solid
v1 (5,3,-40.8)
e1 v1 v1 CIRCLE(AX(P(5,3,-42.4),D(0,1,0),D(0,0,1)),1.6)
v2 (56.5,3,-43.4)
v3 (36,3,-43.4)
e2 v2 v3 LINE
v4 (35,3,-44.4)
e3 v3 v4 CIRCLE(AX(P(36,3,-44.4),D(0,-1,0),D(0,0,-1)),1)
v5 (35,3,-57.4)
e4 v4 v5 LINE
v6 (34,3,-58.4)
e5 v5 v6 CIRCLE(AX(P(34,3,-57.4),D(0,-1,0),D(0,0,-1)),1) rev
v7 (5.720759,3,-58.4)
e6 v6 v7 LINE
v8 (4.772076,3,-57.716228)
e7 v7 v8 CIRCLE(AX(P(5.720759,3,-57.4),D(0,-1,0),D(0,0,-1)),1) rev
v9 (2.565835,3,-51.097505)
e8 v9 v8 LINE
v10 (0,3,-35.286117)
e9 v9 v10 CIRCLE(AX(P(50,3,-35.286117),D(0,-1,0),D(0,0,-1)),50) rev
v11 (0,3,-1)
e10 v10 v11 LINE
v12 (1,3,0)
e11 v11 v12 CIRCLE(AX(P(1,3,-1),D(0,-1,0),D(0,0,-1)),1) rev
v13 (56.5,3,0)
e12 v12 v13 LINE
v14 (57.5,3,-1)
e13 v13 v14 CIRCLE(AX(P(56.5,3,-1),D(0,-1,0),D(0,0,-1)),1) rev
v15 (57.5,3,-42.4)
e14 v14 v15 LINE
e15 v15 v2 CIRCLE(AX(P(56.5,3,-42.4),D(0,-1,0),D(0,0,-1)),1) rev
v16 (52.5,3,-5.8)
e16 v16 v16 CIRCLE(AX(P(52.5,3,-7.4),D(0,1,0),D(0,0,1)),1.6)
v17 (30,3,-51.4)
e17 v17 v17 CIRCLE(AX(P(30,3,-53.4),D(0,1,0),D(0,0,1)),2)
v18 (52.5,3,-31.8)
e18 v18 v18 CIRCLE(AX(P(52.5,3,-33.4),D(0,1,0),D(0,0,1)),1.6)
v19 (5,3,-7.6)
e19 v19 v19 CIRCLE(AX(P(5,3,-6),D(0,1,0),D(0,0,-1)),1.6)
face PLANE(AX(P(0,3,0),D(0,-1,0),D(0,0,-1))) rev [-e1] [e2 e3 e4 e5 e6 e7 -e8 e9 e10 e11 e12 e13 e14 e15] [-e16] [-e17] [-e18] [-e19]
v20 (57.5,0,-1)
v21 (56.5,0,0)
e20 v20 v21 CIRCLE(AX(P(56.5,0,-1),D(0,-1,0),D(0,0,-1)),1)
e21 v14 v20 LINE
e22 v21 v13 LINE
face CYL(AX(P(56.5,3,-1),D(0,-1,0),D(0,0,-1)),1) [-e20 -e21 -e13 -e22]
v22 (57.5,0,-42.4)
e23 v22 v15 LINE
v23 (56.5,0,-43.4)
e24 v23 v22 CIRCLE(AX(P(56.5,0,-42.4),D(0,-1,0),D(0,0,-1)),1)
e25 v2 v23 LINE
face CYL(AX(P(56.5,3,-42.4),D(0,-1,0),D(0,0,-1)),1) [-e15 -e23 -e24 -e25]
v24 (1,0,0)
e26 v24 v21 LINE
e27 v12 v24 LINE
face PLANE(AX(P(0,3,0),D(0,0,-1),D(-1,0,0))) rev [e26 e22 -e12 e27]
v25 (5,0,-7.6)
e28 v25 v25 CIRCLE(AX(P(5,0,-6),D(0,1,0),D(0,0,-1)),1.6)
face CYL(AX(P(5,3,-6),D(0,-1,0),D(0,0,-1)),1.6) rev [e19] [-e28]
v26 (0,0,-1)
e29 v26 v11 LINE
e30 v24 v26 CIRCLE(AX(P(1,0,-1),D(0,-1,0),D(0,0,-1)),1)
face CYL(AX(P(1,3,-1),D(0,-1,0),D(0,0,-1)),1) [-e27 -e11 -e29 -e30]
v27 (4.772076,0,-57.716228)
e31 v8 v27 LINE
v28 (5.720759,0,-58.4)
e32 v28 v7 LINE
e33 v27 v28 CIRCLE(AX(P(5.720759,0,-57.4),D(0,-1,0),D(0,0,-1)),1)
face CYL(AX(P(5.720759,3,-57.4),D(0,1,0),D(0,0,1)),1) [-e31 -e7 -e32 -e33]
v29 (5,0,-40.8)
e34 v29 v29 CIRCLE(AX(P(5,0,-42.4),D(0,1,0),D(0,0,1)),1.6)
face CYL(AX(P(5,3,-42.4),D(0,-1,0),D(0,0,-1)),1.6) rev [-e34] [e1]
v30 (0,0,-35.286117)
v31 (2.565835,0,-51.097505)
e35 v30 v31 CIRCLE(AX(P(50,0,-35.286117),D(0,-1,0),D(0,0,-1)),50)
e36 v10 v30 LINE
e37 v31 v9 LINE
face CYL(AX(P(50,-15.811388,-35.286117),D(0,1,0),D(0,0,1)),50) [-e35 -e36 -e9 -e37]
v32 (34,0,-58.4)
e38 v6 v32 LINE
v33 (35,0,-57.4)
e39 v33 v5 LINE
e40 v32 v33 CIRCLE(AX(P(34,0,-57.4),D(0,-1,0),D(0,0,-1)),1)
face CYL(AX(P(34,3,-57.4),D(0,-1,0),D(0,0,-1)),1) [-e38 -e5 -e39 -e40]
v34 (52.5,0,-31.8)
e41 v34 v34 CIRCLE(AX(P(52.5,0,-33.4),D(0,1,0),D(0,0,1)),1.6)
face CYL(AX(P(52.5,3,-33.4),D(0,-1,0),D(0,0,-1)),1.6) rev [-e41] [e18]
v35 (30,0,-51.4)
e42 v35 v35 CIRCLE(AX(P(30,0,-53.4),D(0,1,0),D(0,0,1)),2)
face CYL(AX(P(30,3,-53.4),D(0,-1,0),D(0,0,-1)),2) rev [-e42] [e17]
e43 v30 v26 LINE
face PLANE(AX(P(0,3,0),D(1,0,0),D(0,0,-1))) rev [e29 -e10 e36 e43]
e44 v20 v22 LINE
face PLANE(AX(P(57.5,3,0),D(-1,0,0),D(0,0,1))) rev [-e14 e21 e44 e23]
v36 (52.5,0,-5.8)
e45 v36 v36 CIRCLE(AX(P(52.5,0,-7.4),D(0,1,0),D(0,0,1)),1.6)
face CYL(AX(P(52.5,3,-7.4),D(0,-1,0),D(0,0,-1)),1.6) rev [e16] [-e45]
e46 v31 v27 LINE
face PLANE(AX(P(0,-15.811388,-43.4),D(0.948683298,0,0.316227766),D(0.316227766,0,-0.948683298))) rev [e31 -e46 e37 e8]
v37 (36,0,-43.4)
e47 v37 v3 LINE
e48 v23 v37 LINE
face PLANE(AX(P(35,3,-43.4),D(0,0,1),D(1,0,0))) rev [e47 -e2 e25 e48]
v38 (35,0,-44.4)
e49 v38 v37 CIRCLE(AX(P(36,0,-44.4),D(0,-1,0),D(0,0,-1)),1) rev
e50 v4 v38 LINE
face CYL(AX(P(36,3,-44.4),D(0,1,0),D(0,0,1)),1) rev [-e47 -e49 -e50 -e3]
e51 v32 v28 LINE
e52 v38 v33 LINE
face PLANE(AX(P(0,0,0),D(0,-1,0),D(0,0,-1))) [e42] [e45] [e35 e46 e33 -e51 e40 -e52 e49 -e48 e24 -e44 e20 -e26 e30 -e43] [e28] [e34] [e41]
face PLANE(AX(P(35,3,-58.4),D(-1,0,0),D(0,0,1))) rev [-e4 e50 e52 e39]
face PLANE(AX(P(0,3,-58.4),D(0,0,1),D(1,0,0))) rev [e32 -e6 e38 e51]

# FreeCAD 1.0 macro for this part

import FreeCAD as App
import Part
import Sketcher

V = App.Vector
Q = App.Units.Quantity


def edges_at(feature, points):
    """Names of the edges that pass closest to the given points."""
    edges = feature.Shape.Edges
    near = lambda p: min(range(len(edges)), key=lambda i: edges[i].distToShape(Part.Vertex(*p))[0])
    return sorted({f"Edge{near(p) + 1}" for p in points})


def add_polygon(sketch, points):
    """Adds a closed chain of lines whose ends are joined by coincident constraints."""
    first, n = sketch.GeometryCount, len(points)
    for a, b in zip(points, points[1:] + points[:1]):
        sketch.addGeometry(Part.LineSegment(App.Vector(*a, 0), App.Vector(*b, 0)), False)
    for i in range(n):
        sketch.addConstraint(Sketcher.Constraint("Coincident", first + i, 2, first + (i + 1) % n, 1))

doc = App.newDocument("Part")
body = doc.addObject("PartDesign::Body", "Body")

# Sketch on XZ plane
sketch1 = doc.addObject("Sketcher::SketchObject", "Sketch")
body.addObject(sketch1)
sketch1.AttachmentSupport = (doc.XZ_Plane, [""])
sketch1.MapMode = "FlatFace"
add_polygon(sketch1, [(35, -58.4), (0, -58.4), (0, 0), (57.5, 0), (57.5, -43.4), (35, -43.4)])  # lines 0-5
sketch1.addGeometry(Part.Circle(V(52.5, -7.4, 0), V(0, 0, 1), 1.6), False)  # 6
sketch1.addGeometry(Part.Circle(V(5, -6, 0), V(0, 0, 1), 1.6), False)  # 7
sketch1.addGeometry(Part.Circle(V(52.5, -33.4, 0), V(0, 0, 1), 1.6), False)  # 8
sketch1.addGeometry(Part.Circle(V(30, -53.4, 0), V(0, 0, 1), 2), False)  # 9
sketch1.addGeometry(Part.Circle(V(5, -42.4, 0), V(0, 0, 1), 1.6), False)  # 10
sketch1.addConstraint([
    Sketcher.Constraint("Horizontal", 0),
    Sketcher.Constraint("Vertical", 1),
    Sketcher.Constraint("Horizontal", 2),
    Sketcher.Constraint("Vertical", 3),
    Sketcher.Constraint("Horizontal", 4),
    Sketcher.Constraint("Vertical", 5),
    Sketcher.Constraint("Coincident", 1, 2, -1, 1),
    Sketcher.Constraint("Equal", 6, 7),
    Sketcher.Constraint("Equal", 7, 8),
    Sketcher.Constraint("Equal", 8, 10),
    Sketcher.Constraint("Vertical", 6, 3, 8, 3),
    Sketcher.Constraint("Vertical", 7, 3, 10, 3),
    Sketcher.Constraint("Diameter", 9, Q("4 mm")),
    Sketcher.Constraint("Diameter", 6, Q("3.2 mm")),
    Sketcher.Constraint("DistanceX", 0, 2, 0, 1, Q("35 mm")),
    Sketcher.Constraint("DistanceY", 5, 2, 5, 1, Q("15 mm")),
    Sketcher.Constraint("DistanceX", 2, 1, 2, 2, Q("57.5 mm")),
    Sketcher.Constraint("DistanceY", 1, 1, 1, 2, Q("58.4 mm")),
    Sketcher.Constraint("DistanceX", -1, 1, 7, 3, Q("5 mm")),
    Sketcher.Constraint("DistanceY", 7, 3, -1, 1, Q("6 mm")),
    Sketcher.Constraint("DistanceX", -1, 1, 9, 3, Q("30 mm")),
    Sketcher.Constraint("DistanceY", 8, 3, 6, 3, Q("26 mm")),
    Sketcher.Constraint("DistanceY", 9, 3, 8, 3, Q("20 mm")),
    Sketcher.Constraint("DistanceY", 9, 3, 10, 3, Q("11 mm")),
    Sketcher.Constraint("DistanceY", 0, 2, 10, 3, Q("16 mm")),
    Sketcher.Constraint("DistanceX", 6, 3, 2, 2, Q("5 mm")),
])
pad1 = doc.addObject("PartDesign::Pad", "Pad")
body.addObject(pad1)
pad1.Profile = sketch1
pad1.Length = 3
pad1.Reversed = True

# Sketch on XZ plane
sketch2 = doc.addObject("Sketcher::SketchObject", "Sketch001")
body.addObject(sketch2)
sketch2.AttachmentSupport = (doc.XZ_Plane, [""])
sketch2.MapMode = "FlatFace"
sketch2.AttachmentOffset = App.Placement(V(0, 0, -3), App.Rotation())
add_polygon(sketch2, [(5, -58), (0, -58), (0, -43)])  # lines 0-2
sketch2.addConstraint([
    Sketcher.Constraint("Horizontal", 0),
    Sketcher.Constraint("Vertical", 1),
    Sketcher.Constraint("PointOnObject", 0, 2, -2),
    Sketcher.Constraint("DistanceX", 0, 2, 0, 1, Q("5 mm")),
    Sketcher.Constraint("DistanceY", 1, 1, 1, 2, Q("15 mm")),
    Sketcher.Constraint("DistanceY", 0, 2, -1, 1, Q("58.4 mm")),
])
pocket1 = doc.addObject("PartDesign::Pocket", "Pocket")
body.addObject(pocket1)
pocket1.Profile = sketch2
pocket1.Length = 3
pocket1.Reversed = True
doc.recompute()

fillet = doc.addObject("PartDesign::Fillet", "Fillet")
body.addObject(fillet)
fillet.Base = (pocket1, edges_at(pocket1, [(0, 1.5, -43.4)]))
fillet.Radius = 50
doc.recompute()

fillet2 = doc.addObject("PartDesign::Fillet", "Fillet001")
body.addObject(fillet2)
fillet2.Base = (fillet, edges_at(fillet, [
    (35, 1.5, -58.4),
    (35, 1.5, -43.4),
    (57.5, 1.5, -43.4),
    (57.5, 1.5, 0),
    (0, 1.5, 0),
    (5, 1.5, -58.4),
]))
fillet2.Radius = 1

doc.recompute()
